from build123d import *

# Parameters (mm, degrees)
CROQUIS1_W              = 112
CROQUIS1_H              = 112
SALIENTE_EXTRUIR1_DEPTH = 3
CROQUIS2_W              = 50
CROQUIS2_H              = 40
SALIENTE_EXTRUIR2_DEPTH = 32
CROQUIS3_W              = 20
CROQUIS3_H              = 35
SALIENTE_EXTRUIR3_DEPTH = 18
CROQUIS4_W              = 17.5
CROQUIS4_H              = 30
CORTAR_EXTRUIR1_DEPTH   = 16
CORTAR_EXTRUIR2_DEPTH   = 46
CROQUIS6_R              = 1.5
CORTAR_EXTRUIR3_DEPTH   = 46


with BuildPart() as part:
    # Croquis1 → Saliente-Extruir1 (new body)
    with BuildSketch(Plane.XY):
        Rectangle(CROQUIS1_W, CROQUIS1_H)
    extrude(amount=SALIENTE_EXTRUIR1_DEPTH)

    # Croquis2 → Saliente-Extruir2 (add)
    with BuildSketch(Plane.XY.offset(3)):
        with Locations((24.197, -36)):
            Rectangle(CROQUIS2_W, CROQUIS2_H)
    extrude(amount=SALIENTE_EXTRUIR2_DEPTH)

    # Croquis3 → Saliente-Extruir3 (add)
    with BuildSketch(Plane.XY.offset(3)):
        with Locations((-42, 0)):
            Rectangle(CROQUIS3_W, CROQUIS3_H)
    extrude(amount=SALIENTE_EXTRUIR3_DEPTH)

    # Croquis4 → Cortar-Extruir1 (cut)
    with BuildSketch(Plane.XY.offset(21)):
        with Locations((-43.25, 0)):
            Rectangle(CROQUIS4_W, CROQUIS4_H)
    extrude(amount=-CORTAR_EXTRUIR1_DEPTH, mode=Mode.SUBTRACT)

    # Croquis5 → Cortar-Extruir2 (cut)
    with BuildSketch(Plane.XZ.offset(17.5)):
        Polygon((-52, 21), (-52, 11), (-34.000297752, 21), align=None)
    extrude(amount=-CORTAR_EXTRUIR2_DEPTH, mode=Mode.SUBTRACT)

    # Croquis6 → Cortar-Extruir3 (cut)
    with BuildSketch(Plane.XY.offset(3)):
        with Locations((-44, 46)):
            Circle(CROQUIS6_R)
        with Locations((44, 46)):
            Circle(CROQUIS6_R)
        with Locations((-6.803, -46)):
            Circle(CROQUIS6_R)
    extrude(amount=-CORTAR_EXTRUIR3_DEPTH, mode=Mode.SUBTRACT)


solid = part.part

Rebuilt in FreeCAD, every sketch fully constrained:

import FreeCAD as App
import Part
import Sketcher


def add_polygon(sketch, points):
    """Adds a closed chain of lines whose ends are joined by coincident constraints."""
    first, n = sketch.GeometryCount, len(points)
    for a, b in zip(points, points[1:] + points[:1]):
        sketch.addGeometry(Part.LineSegment(App.Vector(*a, 0), App.Vector(*b, 0)), False)
    for i in range(n):
        sketch.addConstraint(Sketcher.Constraint("Coincident", first + i, 2, first + (i + 1) % n, 1))

doc = App.newDocument("Part")
body = doc.addObject("PartDesign::Body", "Body")

# Sketch on XY plane
sketch1 = body.newObject("Sketcher::SketchObject", "Sketch")
sketch1.AttachmentSupport = (doc.getObject("XY_Plane"), [""])
sketch1.MapMode = "FlatFace"
add_polygon(sketch1, [(-56, 56), (-56, -56), (56, -56), (56, 56)])  # lines 0-3
sketch1.addConstraint([
    Sketcher.Constraint("Vertical", 0),
    Sketcher.Constraint("Horizontal", 1),
    Sketcher.Constraint("Vertical", 2),
    Sketcher.Constraint("Horizontal", 3),
    Sketcher.Constraint("Symmetric", 0, 2, 2, 2, -1, 1),
    Sketcher.Constraint("Equal", 3, 0),
    Sketcher.Constraint("DistanceX", 1, 1, 1, 2, 112.0),
])
pad1 = body.newObject("PartDesign::Pad", "Pad")
pad1.Profile = sketch1
pad1.Length = 3

# Sketch on XY plane
sketch2 = body.newObject("Sketcher::SketchObject", "Sketch001")
sketch2.AttachmentSupport = (doc.getObject("XY_Plane"), [""])
sketch2.MapMode = "FlatFace"
sketch2.AttachmentOffset = App.Placement(App.Vector(0, 0, 3), App.Rotation())
add_polygon(sketch2, [(-1, -16), (-1, -56), (49, -56), (49, -16)])  # lines 0-3
sketch2.addConstraint([
    Sketcher.Constraint("Vertical", 0),
    Sketcher.Constraint("Horizontal", 1),
    Sketcher.Constraint("Vertical", 2),
    Sketcher.Constraint("Horizontal", 3),
    Sketcher.Constraint("DistanceX", 1, 1, 1, 2, 50.0),
    Sketcher.Constraint("DistanceY", 0, 2, 0, 1, 40.0),
    Sketcher.Constraint("DistanceY", 0, 2, -1, 1, 56.0),
    Sketcher.Constraint("DistanceX", 0, 2, -1, 1, 0.803),
])
pad2 = body.newObject("PartDesign::Pad", "Pad001")
pad2.Profile = sketch2
pad2.Length = 32

# Sketch on XY plane
sketch3 = body.newObject("Sketcher::SketchObject", "Sketch002")
sketch3.AttachmentSupport = (doc.getObject("XY_Plane"), [""])
sketch3.MapMode = "FlatFace"
sketch3.AttachmentOffset = App.Placement(App.Vector(0, 0, 3), App.Rotation())
add_polygon(sketch3, [(-52, 18), (-52, -18), (-32, -18), (-32, 18)])  # lines 0-3
sketch3.addConstraint([
    Sketcher.Constraint("Vertical", 0),
    Sketcher.Constraint("Horizontal", 1),
    Sketcher.Constraint("Vertical", 2),
    Sketcher.Constraint("Horizontal", 3),
    Sketcher.Constraint("DistanceX", 1, 1, 1, 2, 20.0),
    Sketcher.Constraint("DistanceY", 0, 2, 0, 1, 35.0),
    Sketcher.Constraint("DistanceX", 0, 2, -1, 1, 52.0),
    Sketcher.Constraint("DistanceY", 0, 2, -1, 1, 17.5),
])
pad3 = body.newObject("PartDesign::Pad", "Pad002")
pad3.Profile = sketch3
pad3.Length = 18

# Sketch on XY plane
sketch4 = body.newObject("Sketcher::SketchObject", "Sketch003")
sketch4.AttachmentSupport = (doc.getObject("XY_Plane"), [""])
sketch4.MapMode = "FlatFace"
sketch4.AttachmentOffset = App.Placement(App.Vector(0, 0, 21), App.Rotation())
add_polygon(sketch4, [(-52, 15), (-52, -15), (-34, -15), (-34, 15)])  # lines 0-3
sketch4.addConstraint([
    Sketcher.Constraint("Vertical", 0),
    Sketcher.Constraint("Horizontal", 1),
    Sketcher.Constraint("Vertical", 2),
    Sketcher.Constraint("Horizontal", 3),
    Sketcher.Constraint("DistanceY", 0, 2, 0, 1, 30.0),
    Sketcher.Constraint("DistanceX", 1, 1, 1, 2, 17.5),
    Sketcher.Constraint("DistanceX", 0, 2, -1, 1, 52.0),
    Sketcher.Constraint("DistanceY", 0, 2, -1, 1, 15.0),
])
pocket1 = body.newObject("PartDesign::Pocket", "Pocket")
pocket1.Profile = sketch4
pocket1.Length = 16

# Sketch on XZ plane
sketch5 = body.newObject("Sketcher::SketchObject", "Sketch004")
sketch5.AttachmentSupport = (doc.getObject("XZ_Plane"), [""])
sketch5.MapMode = "FlatFace"
sketch5.AttachmentOffset = App.Placement(App.Vector(0, 0, 17.5), App.Rotation())
add_polygon(sketch5, [(-52, 21), (-52, 11), (-34, 21)])  # lines 0-2
sketch5.addConstraint([
    Sketcher.Constraint("Vertical", 0),
    Sketcher.Constraint("Horizontal", 2),
    Sketcher.Constraint("DistanceY", 0, 2, 0, 1, 10.0),
    Sketcher.Constraint("DistanceX", 0, 2, -1, 1, 52.0),
    Sketcher.Constraint("DistanceY", -1, 1, 0, 2, 11.0),
    Sketcher.Constraint("Distance", 1, 20.591),
])
pocket2 = body.newObject("PartDesign::Pocket", "Pocket001")
pocket2.Profile = sketch5
pocket2.Length = 46

# Sketch on XY plane
sketch6 = body.newObject("Sketcher::SketchObject", "Sketch005")
sketch6.AttachmentSupport = (doc.getObject("XY_Plane"), [""])
sketch6.MapMode = "FlatFace"
sketch6.AttachmentOffset = App.Placement(App.Vector(0, 0, 3), App.Rotation())
sketch6.addGeometry([
    Part.Circle(App.Vector(-44, 46, 0), App.Vector(0, 0, 1), 1.5),
    Part.Circle(App.Vector(44, 46, 0), App.Vector(0, 0, 1), 1.5),
    Part.Circle(App.Vector(-6.8, -46, 0), App.Vector(0, 0, 1), 1.5),
], False)
sketch6.addConstraint([
    Sketcher.Constraint("Equal", 0, 1),
    Sketcher.Constraint("Equal", 1, 2),
    Sketcher.Constraint("Symmetric", 0, 3, 1, 3, -2),
    Sketcher.Constraint("Diameter", 0, 3.0),
    Sketcher.Constraint("DistanceX", 0, 3, -1, 1, 44.0),
    Sketcher.Constraint("DistanceY", -1, 1, 0, 3, 46.0),
    Sketcher.Constraint("DistanceY", 2, 3, -1, 1, 46.0),
    Sketcher.Constraint("DistanceX", 2, 3, -1, 1, 6.803),
])
pocket3 = body.newObject("PartDesign::Pocket", "Pocket002")
pocket3.Profile = sketch6
pocket3.Length = 46

doc.recompute()
